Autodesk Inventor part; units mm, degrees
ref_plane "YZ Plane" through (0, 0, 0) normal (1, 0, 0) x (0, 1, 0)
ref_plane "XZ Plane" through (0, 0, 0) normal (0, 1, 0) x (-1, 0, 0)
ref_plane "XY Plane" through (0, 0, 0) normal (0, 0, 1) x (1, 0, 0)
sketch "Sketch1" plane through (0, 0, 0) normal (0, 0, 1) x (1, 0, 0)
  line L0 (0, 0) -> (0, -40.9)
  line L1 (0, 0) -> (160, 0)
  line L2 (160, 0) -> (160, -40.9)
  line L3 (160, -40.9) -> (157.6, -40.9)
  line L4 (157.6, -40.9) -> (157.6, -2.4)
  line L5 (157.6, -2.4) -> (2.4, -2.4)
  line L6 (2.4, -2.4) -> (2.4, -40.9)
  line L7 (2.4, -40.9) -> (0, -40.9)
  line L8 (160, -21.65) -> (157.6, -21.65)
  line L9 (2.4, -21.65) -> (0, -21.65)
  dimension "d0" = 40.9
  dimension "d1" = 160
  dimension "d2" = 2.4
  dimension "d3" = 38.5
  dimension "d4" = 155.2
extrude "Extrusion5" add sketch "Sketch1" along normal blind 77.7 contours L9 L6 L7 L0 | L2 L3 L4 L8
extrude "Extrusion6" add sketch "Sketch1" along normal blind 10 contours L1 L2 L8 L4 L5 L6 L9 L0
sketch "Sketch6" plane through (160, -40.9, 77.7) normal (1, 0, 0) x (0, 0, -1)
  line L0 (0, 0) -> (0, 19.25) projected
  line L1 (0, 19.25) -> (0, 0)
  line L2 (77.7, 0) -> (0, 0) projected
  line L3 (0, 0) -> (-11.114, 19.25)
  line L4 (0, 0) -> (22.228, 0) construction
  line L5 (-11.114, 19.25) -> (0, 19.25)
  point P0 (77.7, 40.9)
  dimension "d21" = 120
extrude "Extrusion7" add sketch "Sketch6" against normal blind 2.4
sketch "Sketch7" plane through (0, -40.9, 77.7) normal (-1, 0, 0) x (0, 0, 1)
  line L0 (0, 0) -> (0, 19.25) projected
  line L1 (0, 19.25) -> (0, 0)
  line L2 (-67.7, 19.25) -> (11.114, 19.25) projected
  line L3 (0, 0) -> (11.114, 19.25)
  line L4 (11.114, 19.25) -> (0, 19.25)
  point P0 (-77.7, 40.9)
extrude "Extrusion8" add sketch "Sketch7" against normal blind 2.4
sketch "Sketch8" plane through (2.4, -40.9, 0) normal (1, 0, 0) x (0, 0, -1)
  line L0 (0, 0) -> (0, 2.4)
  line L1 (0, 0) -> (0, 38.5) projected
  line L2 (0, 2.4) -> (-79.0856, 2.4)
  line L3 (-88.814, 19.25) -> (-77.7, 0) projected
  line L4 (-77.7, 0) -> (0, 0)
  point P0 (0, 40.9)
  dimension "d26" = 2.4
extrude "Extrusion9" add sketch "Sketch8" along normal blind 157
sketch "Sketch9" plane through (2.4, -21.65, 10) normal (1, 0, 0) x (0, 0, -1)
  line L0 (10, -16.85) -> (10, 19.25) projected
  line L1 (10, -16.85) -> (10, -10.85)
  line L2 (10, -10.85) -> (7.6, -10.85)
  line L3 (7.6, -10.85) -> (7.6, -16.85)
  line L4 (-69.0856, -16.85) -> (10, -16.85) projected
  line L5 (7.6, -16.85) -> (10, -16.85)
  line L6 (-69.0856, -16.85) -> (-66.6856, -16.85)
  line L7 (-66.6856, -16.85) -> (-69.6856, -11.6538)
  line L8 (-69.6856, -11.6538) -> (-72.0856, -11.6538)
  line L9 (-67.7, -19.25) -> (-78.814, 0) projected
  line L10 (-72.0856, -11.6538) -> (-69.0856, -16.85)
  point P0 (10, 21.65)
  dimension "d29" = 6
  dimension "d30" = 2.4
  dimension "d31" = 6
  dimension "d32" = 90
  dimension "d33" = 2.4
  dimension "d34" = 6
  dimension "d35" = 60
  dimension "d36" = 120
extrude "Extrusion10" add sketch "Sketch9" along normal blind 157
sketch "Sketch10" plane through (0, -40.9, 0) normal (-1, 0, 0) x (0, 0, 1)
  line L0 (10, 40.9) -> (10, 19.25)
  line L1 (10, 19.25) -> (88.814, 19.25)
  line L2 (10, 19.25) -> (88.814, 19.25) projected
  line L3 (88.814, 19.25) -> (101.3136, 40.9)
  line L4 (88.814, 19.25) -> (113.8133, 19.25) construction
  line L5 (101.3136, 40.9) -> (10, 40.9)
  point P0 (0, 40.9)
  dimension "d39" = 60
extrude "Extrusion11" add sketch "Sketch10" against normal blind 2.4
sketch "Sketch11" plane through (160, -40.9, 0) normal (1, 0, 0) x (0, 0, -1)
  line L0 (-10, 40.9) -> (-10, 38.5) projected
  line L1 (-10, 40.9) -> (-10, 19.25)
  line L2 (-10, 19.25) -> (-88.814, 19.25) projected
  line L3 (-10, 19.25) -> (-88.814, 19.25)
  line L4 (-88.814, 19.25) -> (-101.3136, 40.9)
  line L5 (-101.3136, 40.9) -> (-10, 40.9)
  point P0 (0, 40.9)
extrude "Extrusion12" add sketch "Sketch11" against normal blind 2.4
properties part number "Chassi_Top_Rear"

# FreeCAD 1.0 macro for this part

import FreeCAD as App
import Part
import Sketcher
from FreeCAD import Vector
Q = App.Units.Quantity


def add_polygon(sketch, points):
    """Adds a closed chain of lines whose ends are joined by coincident constraints."""
    first, n = sketch.GeometryCount, len(points)
    for a, b in zip(points, points[1:] + points[:1]):
        sketch.addGeometry(Part.LineSegment(App.Vector(*a, 0), App.Vector(*b, 0)), False)
    for i in range(n):
        sketch.addConstraint(Sketcher.Constraint("Coincident", first + i, 2, first + (i + 1) % n, 1))

doc = App.newDocument("Part")
body = doc.addObject("PartDesign::Body", "Body")
body.AllowCompound = True

# Sketch on XY plane
sketch1 = doc.addObject("Sketcher::SketchObject", "Sketch")
body.addObject(sketch1)
sketch1.AttachmentSupport = (doc.XY_Plane, [""])
sketch1.MapMode = "FlatFace"
add_polygon(sketch1, [(2.4, -21.65), (0, -21.65), (0, -40.9), (2.4, -40.9)])  # lines 0-3
add_polygon(sketch1, [(160, -40.9), (160, -21.65), (157.6, -21.65), (157.6, -40.9)])  # lines 4-7
sketch1.addConstraint([
    Sketcher.Constraint("Horizontal", 0),
    Sketcher.Constraint("Vertical", 1),
    Sketcher.Constraint("Horizontal", 2),
    Sketcher.Constraint("Vertical", 3),
    Sketcher.Constraint("Vertical", 4),
    Sketcher.Constraint("Horizontal", 5),
    Sketcher.Constraint("Vertical", 6),
    Sketcher.Constraint("Horizontal", 7),
    Sketcher.Constraint("PointOnObject", 0, 2, -2),
    Sketcher.Constraint("Horizontal", 3, 2, 4, 2),
    Sketcher.Constraint("Horizontal", 2, 2, 6, 2),
    Sketcher.Constraint("Equal", 2, 5),
    Sketcher.Constraint("DistanceX", 0, 2, 0, 1, 2.4),
    Sketcher.Constraint("DistanceX", -1, 1, 4, 2, 160.0),
    Sketcher.Constraint("DistanceY", 1, 2, -1, 1, 40.9),
    Sketcher.Constraint("DistanceY", 1, 2, 1, 1, 19.25),
])
pad1 = doc.addObject("PartDesign::Pad", "Pad")
body.addObject(pad1)
pad1.Profile = sketch1
pad1.Length = 77.7

# Sketch on XY plane
sketch2 = doc.addObject("Sketcher::SketchObject", "Sketch001")
body.addObject(sketch2)
sketch2.AttachmentSupport = (doc.XY_Plane, [""])
sketch2.MapMode = "FlatFace"
add_polygon(sketch2, [(160, 0), (0, 0), (0, -21.65), (2.4, -21.65), (2.4, -2.4), (157.6, -2.4), (157.6, -21.65), (160, -21.65)])  # lines 0-7
sketch2.addConstraint([
    Sketcher.Constraint("Horizontal", 0),
    Sketcher.Constraint("Vertical", 1),
    Sketcher.Constraint("Horizontal", 2),
    Sketcher.Constraint("Vertical", 3),
    Sketcher.Constraint("Horizontal", 4),
    Sketcher.Constraint("Vertical", 5),
    Sketcher.Constraint("Horizontal", 6),
    Sketcher.Constraint("Vertical", 7),
    Sketcher.Constraint("Coincident", 0, 2, -1, 1),
    Sketcher.Constraint("Horizontal", 2, 2, 5, 2),
    Sketcher.Constraint("Equal", 2, 6),
    Sketcher.Constraint("DistanceX", 0, 2, 0, 1, 160.0),
    Sketcher.Constraint("DistanceX", 2, 1, 2, 2, 2.4),
    Sketcher.Constraint("DistanceY", 3, 2, -1, 1, 2.4),
    Sketcher.Constraint("DistanceY", 1, 2, 1, 1, 21.65),
])
pad2 = doc.addObject("PartDesign::Pad", "Pad001")
body.addObject(pad2)
pad2.Profile = sketch2
pad2.Length = 10

# Sketch on YZ plane
sketch3 = doc.addObject("Sketcher::SketchObject", "Sketch002")
body.addObject(sketch3)
sketch3.AttachmentSupport = (doc.YZ_Plane, [""])
sketch3.MapMode = "FlatFace"
sketch3.AttachmentOffset = App.Placement(Vector(0, 0, 160), App.Rotation())
add_polygon(sketch3, [(-21.65, 88.814), (-40.9, 77.7), (-21.65, 77.7)])  # lines 0-2
sketch3.addConstraint([
    Sketcher.Constraint("Horizontal", 1),
    Sketcher.Constraint("Vertical", 2),
    Sketcher.Constraint("Angle", 0, Q("-150 deg")),
    Sketcher.Constraint("DistanceX", 1, 1, 1, 2, 19.25),
    Sketcher.Constraint("DistanceX", 0, 2, -1, 1, 40.9),
    Sketcher.Constraint("DistanceY", -1, 1, 0, 2, 77.7),
])
pad3 = doc.addObject("PartDesign::Pad", "Pad002")
body.addObject(pad3)
pad3.Profile = sketch3
pad3.Length = 2.4
pad3.Reversed = True

# Sketch on YZ plane
sketch4 = doc.addObject("Sketcher::SketchObject", "Sketch003")
body.addObject(sketch4)
sketch4.AttachmentSupport = (doc.YZ_Plane, [""])
sketch4.MapMode = "FlatFace"
add_polygon(sketch4, [(-21.65, 77.7), (-40.9, 77.7), (-21.65, 88.814)])  # lines 0-2
sketch4.addConstraint([
    Sketcher.Constraint("Horizontal", 0),
    Sketcher.Constraint("Vertical", 2),
    Sketcher.Constraint("Angle", 1, Q("30 deg")),
    Sketcher.Constraint("DistanceX", 0, 2, 0, 1, 19.25),
    Sketcher.Constraint("DistanceX", 0, 2, -1, 1, 40.9),
    Sketcher.Constraint("DistanceY", -1, 1, 0, 2, 77.7),
])
pad4 = doc.addObject("PartDesign::Pad", "Pad003")
body.addObject(pad4)
pad4.Profile = sketch4
pad4.Length = 2.4

# Sketch on YZ plane
sketch5 = doc.addObject("Sketcher::SketchObject", "Sketch004")
body.addObject(sketch5)
sketch5.AttachmentSupport = (doc.YZ_Plane, [""])
sketch5.MapMode = "FlatFace"
sketch5.AttachmentOffset = App.Placement(Vector(0, 0, 2.4), App.Rotation())
add_polygon(sketch5, [(-40.9, 77.7), (-40.9, 0), (-38.5, 0), (-38.500018, 79.085631)])  # lines 0-3
sketch5.addConstraint([
    Sketcher.Constraint("Vertical", 0),
    Sketcher.Constraint("Horizontal", 1),
    Sketcher.Constraint("Vertical", 2),
    Sketcher.Constraint("PointOnObject", 0, 2, -1),
    Sketcher.Constraint("DistanceX", 1, 1, 1, 2, 2.4),
    Sketcher.Constraint("Angle", 3, Q("-150 deg")),
    Sketcher.Constraint("DistanceY", 0, 2, 0, 1, 77.7),
    Sketcher.Constraint("DistanceX", 0, 2, -1, 1, 40.9),
])
pad5 = doc.addObject("PartDesign::Pad", "Pad004")
body.addObject(pad5)
pad5.Profile = sketch5
pad5.Length = 157

# Sketch on YZ plane
sketch6 = doc.addObject("Sketcher::SketchObject", "Sketch005")
body.addObject(sketch6)
sketch6.AttachmentSupport = (doc.YZ_Plane, [""])
sketch6.MapMode = "FlatFace"
sketch6.AttachmentOffset = App.Placement(Vector(0, 0, 2.4), App.Rotation())
add_polygon(sketch6, [(-38.5, 2.4), (-38.5, 0), (-32.5, 0), (-32.5, 2.4)])  # lines 0-3
add_polygon(sketch6, [(-38.5, 79.0856), (-38.5, 76.6856), (-33.3038, 79.6856), (-33.303831, 82.085653)])  # lines 4-7
sketch6.addConstraint([
    Sketcher.Constraint("Vertical", 0),
    Sketcher.Constraint("Horizontal", 1),
    Sketcher.Constraint("Vertical", 2),
    Sketcher.Constraint("Horizontal", 3),
    Sketcher.Constraint("Vertical", 4),
    Sketcher.Constraint("Vertical", 6),
    Sketcher.Constraint("PointOnObject", 0, 2, -1),
    Sketcher.Constraint("Parallel", 5, 7),
    Sketcher.Constraint("Vertical", 3, 2, 4, 2),
    Sketcher.Constraint("Equal", 2, 4),
    Sketcher.Constraint("DistanceX", 1, 1, 1, 2, 6.0),
    Sketcher.Constraint("Distance", 5, 6.0),
    Sketcher.Constraint("DistanceY", 0, 2, 0, 1, 2.4),
    Sketcher.Constraint("Angle", 5, Q("29.9998 deg")),
    Sketcher.Constraint("DistanceX", 0, 2, -1, 1, 38.5),
    Sketcher.Constraint("DistanceY", -1, 1, 4, 2, 76.6856),
])
pad6 = doc.addObject("PartDesign::Pad", "Pad005")
body.addObject(pad6)
pad6.Profile = sketch6
pad6.Length = 157

# Sketch on YZ plane
sketch7 = doc.addObject("Sketcher::SketchObject", "Sketch006")
body.addObject(sketch7)
sketch7.AttachmentSupport = (doc.YZ_Plane, [""])
sketch7.MapMode = "FlatFace"
add_polygon(sketch7, [(0, 101.3136), (0, 10), (-21.65, 10), (-21.65, 88.814)])  # lines 0-3
sketch7.addConstraint([
    Sketcher.Constraint("Vertical", 0),
    Sketcher.Constraint("Horizontal", 1),
    Sketcher.Constraint("Vertical", 2),
    Sketcher.Constraint("PointOnObject", 0, 2, -2),
    Sketcher.Constraint("Angle", 3, Q("30 deg")),
    Sketcher.Constraint("DistanceY", -1, 1, 0, 2, 10.0),
    Sketcher.Constraint("DistanceX", 1, 2, 1, 1, 21.65),
    Sketcher.Constraint("DistanceY", 2, 1, 2, 2, 78.814),
])
pad7 = doc.addObject("PartDesign::Pad", "Pad006")
body.addObject(pad7)
pad7.Profile = sketch7
pad7.Length = 2.4

# Sketch on YZ plane
sketch8 = doc.addObject("Sketcher::SketchObject", "Sketch007")
body.addObject(sketch8)
sketch8.AttachmentSupport = (doc.YZ_Plane, [""])
sketch8.MapMode = "FlatFace"
sketch8.AttachmentOffset = App.Placement(Vector(0, 0, 160), App.Rotation())
add_polygon(sketch8, [(-21.65, 10), (0, 10), (0, 101.3136), (-21.65, 88.814)])  # lines 0-3
sketch8.addConstraint([
    Sketcher.Constraint("Horizontal", 0),
    Sketcher.Constraint("Vertical", 1),
    Sketcher.Constraint("Vertical", 3),
    Sketcher.Constraint("PointOnObject", 0, 2, -2),
    Sketcher.Constraint("Angle", 2, Q("-150 deg")),
    Sketcher.Constraint("DistanceY", -1, 1, 0, 2, 10.0),
    Sketcher.Constraint("DistanceX", 0, 1, 0, 2, 21.65),
    Sketcher.Constraint("DistanceY", 3, 2, 3, 1, 78.814),
])
pad8 = doc.addObject("PartDesign::Pad", "Pad007")
body.addObject(pad8)
pad8.Profile = sketch8
pad8.Length = 2.4
pad8.Reversed = True

doc.recompute()
